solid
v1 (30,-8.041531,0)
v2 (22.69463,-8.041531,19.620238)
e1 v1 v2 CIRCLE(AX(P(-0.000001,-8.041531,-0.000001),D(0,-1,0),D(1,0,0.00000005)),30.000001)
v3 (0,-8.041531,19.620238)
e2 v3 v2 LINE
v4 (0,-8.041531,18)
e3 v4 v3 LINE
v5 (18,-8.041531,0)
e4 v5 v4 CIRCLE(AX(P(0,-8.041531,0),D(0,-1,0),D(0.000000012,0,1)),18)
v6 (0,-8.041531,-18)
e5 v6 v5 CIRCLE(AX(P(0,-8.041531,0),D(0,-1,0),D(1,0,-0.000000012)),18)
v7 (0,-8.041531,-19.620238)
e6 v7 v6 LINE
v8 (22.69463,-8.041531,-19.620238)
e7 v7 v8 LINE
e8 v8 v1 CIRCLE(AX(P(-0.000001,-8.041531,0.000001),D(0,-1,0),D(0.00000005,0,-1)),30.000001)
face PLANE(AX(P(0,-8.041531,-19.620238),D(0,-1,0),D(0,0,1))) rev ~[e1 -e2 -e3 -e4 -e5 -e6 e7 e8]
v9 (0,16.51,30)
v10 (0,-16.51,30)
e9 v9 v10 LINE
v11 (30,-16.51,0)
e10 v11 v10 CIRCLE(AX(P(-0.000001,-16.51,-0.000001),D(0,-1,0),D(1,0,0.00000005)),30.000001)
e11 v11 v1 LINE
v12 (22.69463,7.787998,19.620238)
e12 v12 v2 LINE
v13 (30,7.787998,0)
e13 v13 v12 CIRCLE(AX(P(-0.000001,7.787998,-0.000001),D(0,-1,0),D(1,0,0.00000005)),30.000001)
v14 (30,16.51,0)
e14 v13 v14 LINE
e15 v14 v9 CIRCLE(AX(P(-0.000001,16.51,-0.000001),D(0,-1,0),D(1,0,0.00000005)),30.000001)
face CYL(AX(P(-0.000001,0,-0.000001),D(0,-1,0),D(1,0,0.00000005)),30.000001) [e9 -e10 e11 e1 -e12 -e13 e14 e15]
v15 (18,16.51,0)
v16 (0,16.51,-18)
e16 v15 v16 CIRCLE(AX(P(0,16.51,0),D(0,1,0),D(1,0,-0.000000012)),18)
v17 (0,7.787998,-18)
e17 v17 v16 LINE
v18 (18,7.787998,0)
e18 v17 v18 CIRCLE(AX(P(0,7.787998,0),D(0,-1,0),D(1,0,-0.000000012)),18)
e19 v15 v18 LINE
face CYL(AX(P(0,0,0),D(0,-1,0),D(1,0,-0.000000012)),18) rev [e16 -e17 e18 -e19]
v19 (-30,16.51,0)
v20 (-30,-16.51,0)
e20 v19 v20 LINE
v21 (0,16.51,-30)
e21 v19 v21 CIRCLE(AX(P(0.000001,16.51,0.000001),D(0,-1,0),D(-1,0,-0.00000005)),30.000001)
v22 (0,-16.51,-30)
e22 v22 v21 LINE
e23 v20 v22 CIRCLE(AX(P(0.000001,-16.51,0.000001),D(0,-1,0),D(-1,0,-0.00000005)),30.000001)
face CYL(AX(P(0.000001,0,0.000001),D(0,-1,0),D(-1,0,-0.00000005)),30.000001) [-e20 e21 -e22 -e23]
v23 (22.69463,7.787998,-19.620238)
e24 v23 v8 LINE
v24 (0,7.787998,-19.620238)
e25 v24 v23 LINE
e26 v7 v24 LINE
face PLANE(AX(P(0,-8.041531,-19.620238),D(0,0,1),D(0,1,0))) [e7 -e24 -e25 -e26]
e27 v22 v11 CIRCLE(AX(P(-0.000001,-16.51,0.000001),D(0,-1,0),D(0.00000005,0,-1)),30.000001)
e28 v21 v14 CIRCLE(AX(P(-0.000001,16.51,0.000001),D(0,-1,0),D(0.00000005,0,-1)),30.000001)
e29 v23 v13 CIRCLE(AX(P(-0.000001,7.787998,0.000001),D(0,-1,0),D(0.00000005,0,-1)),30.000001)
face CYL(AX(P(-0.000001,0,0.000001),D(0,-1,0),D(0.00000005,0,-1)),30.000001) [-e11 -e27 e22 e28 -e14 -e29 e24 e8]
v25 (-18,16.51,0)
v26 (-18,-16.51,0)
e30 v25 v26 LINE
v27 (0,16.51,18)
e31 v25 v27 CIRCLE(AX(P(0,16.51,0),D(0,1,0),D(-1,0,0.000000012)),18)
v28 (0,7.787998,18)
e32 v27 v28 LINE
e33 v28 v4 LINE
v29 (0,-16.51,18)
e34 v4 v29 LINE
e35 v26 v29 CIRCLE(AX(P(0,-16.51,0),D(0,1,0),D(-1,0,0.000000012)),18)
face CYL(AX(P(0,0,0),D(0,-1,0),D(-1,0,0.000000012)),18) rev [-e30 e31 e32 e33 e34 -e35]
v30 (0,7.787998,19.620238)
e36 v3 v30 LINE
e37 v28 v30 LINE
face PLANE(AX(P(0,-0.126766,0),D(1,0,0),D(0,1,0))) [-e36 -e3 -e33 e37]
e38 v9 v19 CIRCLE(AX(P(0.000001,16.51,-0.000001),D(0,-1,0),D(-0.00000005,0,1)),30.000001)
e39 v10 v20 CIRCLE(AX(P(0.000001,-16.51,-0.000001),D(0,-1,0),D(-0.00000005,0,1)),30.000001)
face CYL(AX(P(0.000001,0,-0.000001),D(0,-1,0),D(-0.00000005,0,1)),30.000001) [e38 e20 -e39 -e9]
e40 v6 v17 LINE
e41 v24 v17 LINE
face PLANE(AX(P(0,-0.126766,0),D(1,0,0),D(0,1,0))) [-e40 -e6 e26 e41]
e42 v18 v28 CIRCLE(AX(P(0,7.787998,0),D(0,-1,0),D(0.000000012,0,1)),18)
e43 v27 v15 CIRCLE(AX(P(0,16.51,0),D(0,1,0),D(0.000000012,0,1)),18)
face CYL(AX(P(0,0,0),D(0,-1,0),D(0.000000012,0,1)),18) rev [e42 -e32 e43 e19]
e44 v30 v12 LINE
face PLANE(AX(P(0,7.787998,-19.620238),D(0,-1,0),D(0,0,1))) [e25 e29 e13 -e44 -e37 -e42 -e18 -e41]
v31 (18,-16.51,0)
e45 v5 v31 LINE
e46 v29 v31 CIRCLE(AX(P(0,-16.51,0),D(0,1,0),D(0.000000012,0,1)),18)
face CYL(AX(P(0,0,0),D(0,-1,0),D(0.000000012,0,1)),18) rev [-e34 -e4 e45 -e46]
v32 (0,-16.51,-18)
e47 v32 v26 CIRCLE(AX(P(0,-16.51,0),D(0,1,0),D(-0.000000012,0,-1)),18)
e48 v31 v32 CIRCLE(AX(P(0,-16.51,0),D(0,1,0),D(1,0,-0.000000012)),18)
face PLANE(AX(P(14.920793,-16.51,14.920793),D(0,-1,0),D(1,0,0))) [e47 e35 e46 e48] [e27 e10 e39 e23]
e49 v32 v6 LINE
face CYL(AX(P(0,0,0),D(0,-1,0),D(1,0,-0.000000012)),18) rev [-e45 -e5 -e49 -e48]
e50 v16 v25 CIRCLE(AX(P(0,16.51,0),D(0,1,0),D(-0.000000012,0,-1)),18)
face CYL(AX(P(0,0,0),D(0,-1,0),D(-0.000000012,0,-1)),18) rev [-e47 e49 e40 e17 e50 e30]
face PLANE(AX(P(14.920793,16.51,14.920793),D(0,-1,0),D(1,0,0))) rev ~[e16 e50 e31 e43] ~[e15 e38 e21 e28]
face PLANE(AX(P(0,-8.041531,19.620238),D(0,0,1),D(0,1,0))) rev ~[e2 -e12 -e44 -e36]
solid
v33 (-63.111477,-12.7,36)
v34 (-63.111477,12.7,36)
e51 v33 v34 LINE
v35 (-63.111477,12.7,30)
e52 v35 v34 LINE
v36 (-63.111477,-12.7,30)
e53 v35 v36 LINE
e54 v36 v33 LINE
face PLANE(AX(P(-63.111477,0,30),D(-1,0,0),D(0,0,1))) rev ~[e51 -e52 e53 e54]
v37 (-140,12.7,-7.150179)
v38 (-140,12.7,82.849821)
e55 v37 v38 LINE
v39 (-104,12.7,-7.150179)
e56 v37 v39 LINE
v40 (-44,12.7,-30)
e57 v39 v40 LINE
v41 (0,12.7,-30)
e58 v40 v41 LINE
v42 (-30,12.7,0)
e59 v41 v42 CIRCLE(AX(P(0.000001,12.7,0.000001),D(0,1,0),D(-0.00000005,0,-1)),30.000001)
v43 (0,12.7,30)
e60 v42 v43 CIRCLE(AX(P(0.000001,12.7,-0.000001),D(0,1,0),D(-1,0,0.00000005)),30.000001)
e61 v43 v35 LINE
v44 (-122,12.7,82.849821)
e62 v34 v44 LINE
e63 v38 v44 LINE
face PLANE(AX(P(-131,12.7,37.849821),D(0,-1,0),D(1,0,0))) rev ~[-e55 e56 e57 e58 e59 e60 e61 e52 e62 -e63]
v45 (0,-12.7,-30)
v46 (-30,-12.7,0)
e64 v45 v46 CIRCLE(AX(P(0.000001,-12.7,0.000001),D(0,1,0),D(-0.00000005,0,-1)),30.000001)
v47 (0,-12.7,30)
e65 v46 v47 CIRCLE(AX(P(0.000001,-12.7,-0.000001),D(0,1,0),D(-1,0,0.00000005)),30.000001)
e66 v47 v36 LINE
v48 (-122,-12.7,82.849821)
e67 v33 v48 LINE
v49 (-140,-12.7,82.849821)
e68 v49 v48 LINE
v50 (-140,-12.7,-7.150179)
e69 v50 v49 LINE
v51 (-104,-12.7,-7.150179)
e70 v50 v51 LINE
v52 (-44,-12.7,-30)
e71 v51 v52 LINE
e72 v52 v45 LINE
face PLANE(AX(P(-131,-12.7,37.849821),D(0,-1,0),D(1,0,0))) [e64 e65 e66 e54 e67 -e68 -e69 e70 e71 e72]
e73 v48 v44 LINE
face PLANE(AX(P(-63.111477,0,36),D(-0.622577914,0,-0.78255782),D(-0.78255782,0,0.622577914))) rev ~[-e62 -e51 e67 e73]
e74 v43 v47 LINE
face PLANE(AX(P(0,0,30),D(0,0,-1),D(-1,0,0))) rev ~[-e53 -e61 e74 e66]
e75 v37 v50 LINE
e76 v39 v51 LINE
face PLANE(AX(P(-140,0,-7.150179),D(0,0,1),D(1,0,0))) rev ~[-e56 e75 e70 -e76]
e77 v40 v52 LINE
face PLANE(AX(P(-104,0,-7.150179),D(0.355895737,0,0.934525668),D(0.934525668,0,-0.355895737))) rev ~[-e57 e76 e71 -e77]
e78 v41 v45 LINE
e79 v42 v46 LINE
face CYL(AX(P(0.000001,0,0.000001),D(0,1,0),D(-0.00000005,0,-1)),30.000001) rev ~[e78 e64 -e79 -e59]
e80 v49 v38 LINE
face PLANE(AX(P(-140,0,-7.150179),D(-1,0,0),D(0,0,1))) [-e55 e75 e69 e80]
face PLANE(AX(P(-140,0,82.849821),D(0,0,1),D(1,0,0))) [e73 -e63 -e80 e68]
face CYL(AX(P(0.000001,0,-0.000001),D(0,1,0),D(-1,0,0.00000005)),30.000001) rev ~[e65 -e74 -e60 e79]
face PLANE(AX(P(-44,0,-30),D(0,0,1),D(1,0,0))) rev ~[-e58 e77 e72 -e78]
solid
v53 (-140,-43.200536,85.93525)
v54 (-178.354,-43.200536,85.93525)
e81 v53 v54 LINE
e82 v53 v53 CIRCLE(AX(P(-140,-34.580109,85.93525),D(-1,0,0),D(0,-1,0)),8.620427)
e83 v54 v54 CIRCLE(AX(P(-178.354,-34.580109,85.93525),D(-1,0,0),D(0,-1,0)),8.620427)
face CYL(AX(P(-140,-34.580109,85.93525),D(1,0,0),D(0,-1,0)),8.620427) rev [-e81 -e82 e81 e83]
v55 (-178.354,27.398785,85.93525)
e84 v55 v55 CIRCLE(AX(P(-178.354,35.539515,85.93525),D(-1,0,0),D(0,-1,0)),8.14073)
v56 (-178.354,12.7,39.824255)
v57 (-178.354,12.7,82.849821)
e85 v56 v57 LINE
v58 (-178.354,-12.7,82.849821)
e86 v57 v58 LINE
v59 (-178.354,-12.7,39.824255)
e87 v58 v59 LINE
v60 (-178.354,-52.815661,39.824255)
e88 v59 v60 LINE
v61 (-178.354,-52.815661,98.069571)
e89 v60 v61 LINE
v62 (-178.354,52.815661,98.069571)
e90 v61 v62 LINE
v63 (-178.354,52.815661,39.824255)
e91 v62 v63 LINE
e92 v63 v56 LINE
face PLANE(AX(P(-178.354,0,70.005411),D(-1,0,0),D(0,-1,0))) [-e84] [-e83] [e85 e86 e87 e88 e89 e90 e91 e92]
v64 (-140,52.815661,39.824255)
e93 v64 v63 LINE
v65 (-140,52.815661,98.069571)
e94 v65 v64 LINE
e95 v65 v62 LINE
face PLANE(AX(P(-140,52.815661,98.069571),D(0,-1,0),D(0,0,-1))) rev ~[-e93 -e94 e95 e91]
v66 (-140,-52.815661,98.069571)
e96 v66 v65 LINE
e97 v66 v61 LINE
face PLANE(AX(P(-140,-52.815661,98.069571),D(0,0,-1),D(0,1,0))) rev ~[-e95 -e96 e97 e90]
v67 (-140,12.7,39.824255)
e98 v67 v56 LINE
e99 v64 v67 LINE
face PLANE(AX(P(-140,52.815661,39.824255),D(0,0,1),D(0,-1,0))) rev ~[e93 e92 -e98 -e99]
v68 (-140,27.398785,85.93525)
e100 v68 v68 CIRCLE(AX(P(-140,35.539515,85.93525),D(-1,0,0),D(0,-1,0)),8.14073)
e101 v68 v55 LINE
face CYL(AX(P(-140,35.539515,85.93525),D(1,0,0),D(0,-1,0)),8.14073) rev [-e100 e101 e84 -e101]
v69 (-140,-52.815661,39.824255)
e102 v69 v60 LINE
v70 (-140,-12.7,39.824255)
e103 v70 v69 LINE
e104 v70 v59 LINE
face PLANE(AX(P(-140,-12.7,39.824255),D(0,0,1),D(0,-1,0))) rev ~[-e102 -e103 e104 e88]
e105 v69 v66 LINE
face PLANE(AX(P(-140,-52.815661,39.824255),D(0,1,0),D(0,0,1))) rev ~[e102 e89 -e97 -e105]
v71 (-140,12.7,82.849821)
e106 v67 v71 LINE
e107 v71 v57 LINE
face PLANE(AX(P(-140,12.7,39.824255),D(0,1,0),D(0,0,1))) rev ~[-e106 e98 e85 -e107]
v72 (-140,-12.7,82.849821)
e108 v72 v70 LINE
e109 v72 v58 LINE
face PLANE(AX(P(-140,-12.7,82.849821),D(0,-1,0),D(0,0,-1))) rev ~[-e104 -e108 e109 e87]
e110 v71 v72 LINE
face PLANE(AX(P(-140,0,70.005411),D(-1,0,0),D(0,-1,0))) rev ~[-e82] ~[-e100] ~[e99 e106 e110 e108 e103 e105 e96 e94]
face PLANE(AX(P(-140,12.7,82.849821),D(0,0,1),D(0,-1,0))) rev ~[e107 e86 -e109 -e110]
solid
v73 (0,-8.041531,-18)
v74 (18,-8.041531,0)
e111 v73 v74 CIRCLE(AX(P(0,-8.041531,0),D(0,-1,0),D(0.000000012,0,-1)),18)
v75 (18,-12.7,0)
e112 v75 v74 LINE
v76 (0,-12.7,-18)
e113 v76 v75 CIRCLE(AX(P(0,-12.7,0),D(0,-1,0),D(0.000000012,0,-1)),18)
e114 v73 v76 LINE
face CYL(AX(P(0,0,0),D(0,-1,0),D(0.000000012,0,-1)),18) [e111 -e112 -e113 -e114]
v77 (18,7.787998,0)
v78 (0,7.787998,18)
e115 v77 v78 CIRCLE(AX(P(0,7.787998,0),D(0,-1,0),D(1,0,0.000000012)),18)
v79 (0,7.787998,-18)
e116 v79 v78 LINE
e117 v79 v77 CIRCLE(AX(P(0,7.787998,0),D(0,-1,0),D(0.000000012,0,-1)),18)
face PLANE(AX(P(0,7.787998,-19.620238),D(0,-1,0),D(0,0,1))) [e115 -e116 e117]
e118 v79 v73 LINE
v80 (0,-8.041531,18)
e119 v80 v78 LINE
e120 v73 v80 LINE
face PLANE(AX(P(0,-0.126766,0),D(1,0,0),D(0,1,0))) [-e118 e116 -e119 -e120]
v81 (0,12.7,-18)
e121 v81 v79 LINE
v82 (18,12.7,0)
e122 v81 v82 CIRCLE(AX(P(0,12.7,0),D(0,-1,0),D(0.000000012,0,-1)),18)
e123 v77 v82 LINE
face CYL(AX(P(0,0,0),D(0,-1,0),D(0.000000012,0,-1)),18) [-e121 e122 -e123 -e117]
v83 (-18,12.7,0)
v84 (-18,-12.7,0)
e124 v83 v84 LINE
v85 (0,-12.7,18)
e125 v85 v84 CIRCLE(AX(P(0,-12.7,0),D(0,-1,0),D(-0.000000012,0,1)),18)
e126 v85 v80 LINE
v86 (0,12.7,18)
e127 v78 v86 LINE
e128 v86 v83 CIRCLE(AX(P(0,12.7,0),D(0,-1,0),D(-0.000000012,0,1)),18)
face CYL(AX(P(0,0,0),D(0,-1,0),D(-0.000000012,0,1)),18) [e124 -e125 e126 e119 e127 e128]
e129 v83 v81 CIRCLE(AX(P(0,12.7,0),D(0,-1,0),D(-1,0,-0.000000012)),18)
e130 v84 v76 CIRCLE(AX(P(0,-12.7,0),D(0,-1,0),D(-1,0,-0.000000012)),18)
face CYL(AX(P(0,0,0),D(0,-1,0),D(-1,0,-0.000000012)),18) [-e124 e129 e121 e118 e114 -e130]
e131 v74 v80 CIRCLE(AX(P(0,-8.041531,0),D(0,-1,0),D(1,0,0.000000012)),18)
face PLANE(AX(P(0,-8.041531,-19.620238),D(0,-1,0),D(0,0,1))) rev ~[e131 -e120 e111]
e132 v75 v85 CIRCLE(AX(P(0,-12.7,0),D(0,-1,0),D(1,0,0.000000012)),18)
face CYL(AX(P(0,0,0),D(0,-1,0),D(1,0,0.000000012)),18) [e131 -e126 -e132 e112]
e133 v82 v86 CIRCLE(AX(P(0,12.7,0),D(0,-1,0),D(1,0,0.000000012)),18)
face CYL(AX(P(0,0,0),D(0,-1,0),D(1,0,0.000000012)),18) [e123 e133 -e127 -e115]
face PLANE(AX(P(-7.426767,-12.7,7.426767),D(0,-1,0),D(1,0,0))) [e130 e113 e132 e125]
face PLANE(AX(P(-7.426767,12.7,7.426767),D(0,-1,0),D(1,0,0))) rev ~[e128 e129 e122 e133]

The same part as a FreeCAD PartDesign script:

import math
import FreeCAD as App
import Part
import Sketcher
from FreeCAD import Vector


def add_polygon(sketch, points):
    """Adds a closed chain of lines whose ends are joined by coincident constraints."""
    first, n = sketch.GeometryCount, len(points)
    for a, b in zip(points, points[1:] + points[:1]):
        sketch.addGeometry(Part.LineSegment(App.Vector(*a, 0), App.Vector(*b, 0)), False)
    for i in range(n):
        sketch.addConstraint(Sketcher.Constraint("Coincident", first + i, 2, first + (i + 1) % n, 1))

doc = App.newDocument("Part")
body = doc.addObject("PartDesign::Body", "Body")
body.AllowCompound = True

# Sketch on XZ plane
sketch1 = doc.addObject("Sketcher::SketchObject", "Sketch")
body.addObject(sketch1)
sketch1.AttachmentSupport = (doc.XZ_Plane, [""])
sketch1.MapMode = "FlatFace"
sketch1.addGeometry([
    Part.LineSegment(Vector(-140, 83, 0), Vector(-140, -7, 0)),  # 0
    Part.LineSegment(Vector(-140, -7, 0), Vector(-104, -7, 0)),  # 1
    Part.LineSegment(Vector(-104, -7, 0), Vector(-44, -30, 0)),  # 2
    Part.LineSegment(Vector(-44, -30, 0), Vector(0, -30, 0)),  # 3
    Part.ArcOfCircle(Part.Circle(Vector(0, 0, 0), Vector(0, 0, 1), 30), math.radians(-180), math.radians(-90)),  # 4
    Part.ArcOfCircle(Part.Circle(Vector(0, 0, 0), Vector(0, 0, 1), 30), math.radians(90), math.radians(180)),  # 5
    Part.LineSegment(Vector(0, 30, 0), Vector(-63, 30, 0)),  # 6
    Part.LineSegment(Vector(-63, 30, 0), Vector(-63, 36, 0)),  # 7
    Part.LineSegment(Vector(-63, 36, 0), Vector(-122, 83, 0)),  # 8
    Part.LineSegment(Vector(-122, 83, 0), Vector(-140, 83, 0)),  # 9
    Part.ArcOfCircle(Part.Circle(Vector(0, 0, 0), Vector(0, 0, 1), 18), math.radians(90), math.radians(180)),  # 10
    Part.ArcOfCircle(Part.Circle(Vector(0, 0, 0), Vector(0, 0, 1), 18), math.radians(-180), math.radians(-90)),  # 11
    Part.ArcOfCircle(Part.Circle(Vector(0, 0, 0), Vector(0, 0, 1), 18), math.radians(-90), math.radians(0)),  # 12
    Part.ArcOfCircle(Part.Circle(Vector(0, 0, 0), Vector(0, 0, 1), 18), math.radians(0), math.radians(90)),  # 13
], False)
sketch1.addConstraint([
    Sketcher.Constraint("Coincident", 0, 2, 1, 1),
    Sketcher.Constraint("Coincident", 1, 2, 2, 1),
    Sketcher.Constraint("Coincident", 2, 2, 3, 1),
    Sketcher.Constraint("Tangent", 3, 2, 4, 2),
    Sketcher.Constraint("Tangent", 4, 1, 5, 2),
    Sketcher.Constraint("Tangent", 5, 1, 6, 1),
    Sketcher.Constraint("Coincident", 6, 2, 7, 1),
    Sketcher.Constraint("Coincident", 7, 2, 8, 1),
    Sketcher.Constraint("Coincident", 8, 2, 9, 1),
    Sketcher.Constraint("Coincident", 9, 2, 0, 1),
    Sketcher.Constraint("Tangent", 10, 2, 11, 1),
    Sketcher.Constraint("Tangent", 11, 2, 12, 1),
    Sketcher.Constraint("Tangent", 12, 2, 13, 1),
    Sketcher.Constraint("Tangent", 13, 2, 10, 1),
    Sketcher.Constraint("Vertical", 0),
    Sketcher.Constraint("Horizontal", 1),
    Sketcher.Constraint("Horizontal", 3),
    Sketcher.Constraint("Horizontal", 6),
    Sketcher.Constraint("Vertical", 7),
    Sketcher.Constraint("Horizontal", 9),
    Sketcher.Constraint("Coincident", 4, 3, -1, 1),
    Sketcher.Constraint("Coincident", 10, 3, -1, 1),
    Sketcher.Constraint("Equal", 4, 5),
    Sketcher.Constraint("Equal", 10, 11),
    Sketcher.Constraint("PointOnObject", 4, 1, -1),
    Sketcher.Constraint("PointOnObject", 10, 2, -1),
    Sketcher.Constraint("PointOnObject", 11, 2, -2),
    Sketcher.Constraint("PointOnObject", 12, 2, -1),
    Sketcher.Constraint("PointOnObject", 13, 2, -2),
    Sketcher.Constraint("Radius", 4, 30.000001),
    Sketcher.Constraint("Radius", 10, 18.0),
    Sketcher.Constraint("DistanceX", 1, 1, 1, 2, 36.0),
    Sketcher.Constraint("DistanceX", 3, 1, 3, 2, 44.0),
    Sketcher.Constraint("DistanceX", 9, 2, 9, 1, 18.0),
    Sketcher.Constraint("DistanceY", 0, 2, 0, 1, 90.0),
    Sketcher.Constraint("DistanceY", 7, 1, 7, 2, 6.0),
    Sketcher.Constraint("DistanceX", 0, 2, -1, 1, 140.0),
    Sketcher.Constraint("DistanceX", 6, 2, 6, 1, 63.111477),
    Sketcher.Constraint("DistanceY", 0, 2, -1, 1, 7.150179),
])
pad1 = doc.addObject("PartDesign::Pad", "Pad")
body.addObject(pad1)
pad1.Profile = sketch1
pad1.Length = 25.4
pad1.Midplane = True
body2 = doc.addObject("PartDesign::Body", "Body001")

# Sketch on XZ plane
sketch2 = doc.addObject("Sketcher::SketchObject", "Sketch001")
body2.addObject(sketch2)
sketch2.AttachmentSupport = (doc.getObject("XZ_Plane001"), [""])
sketch2.MapMode = "FlatFace"
sketch2.addGeometry([
    Part.ArcOfCircle(Part.Circle(Vector(0, 0, 0), Vector(0, 0, 1), 30), math.radians(0), math.radians(90)),  # 0
    Part.ArcOfCircle(Part.Circle(Vector(0, 0, 0), Vector(0, 0, 1), 30), math.radians(90), math.radians(180)),  # 1
    Part.ArcOfCircle(Part.Circle(Vector(0, 0, 0), Vector(0, 0, 1), 30), math.radians(-180), math.radians(-90)),  # 2
    Part.ArcOfCircle(Part.Circle(Vector(0, 0, 0), Vector(0, 0, 1), 30), math.radians(-90), math.radians(0)),  # 3
    Part.ArcOfCircle(Part.Circle(Vector(0, 0, 0), Vector(0, 0, 1), 18), math.radians(-180), math.radians(-90)),  # 4
    Part.ArcOfCircle(Part.Circle(Vector(0, 0, 0), Vector(0, 0, 1), 18), math.radians(90), math.radians(180)),  # 5
    Part.ArcOfCircle(Part.Circle(Vector(0, 0, 0), Vector(0, 0, 1), 18), math.radians(0), math.radians(90)),  # 6
    Part.ArcOfCircle(Part.Circle(Vector(0, 0, 0), Vector(0, 0, 1), 18), math.radians(-90), math.radians(0)),  # 7
], False)
sketch2.addConstraint([
    Sketcher.Constraint("Tangent", 0, 2, 1, 1),
    Sketcher.Constraint("Tangent", 1, 2, 2, 1),
    Sketcher.Constraint("Tangent", 2, 2, 3, 1),
    Sketcher.Constraint("Tangent", 3, 2, 0, 1),
    Sketcher.Constraint("Tangent", 4, 1, 5, 2),
    Sketcher.Constraint("Tangent", 5, 1, 6, 2),
    Sketcher.Constraint("Tangent", 6, 1, 7, 2),
    Sketcher.Constraint("Tangent", 7, 1, 4, 2),
    Sketcher.Constraint("Coincident", 0, 3, -1, 1),
    Sketcher.Constraint("Coincident", 4, 3, -1, 1),
    Sketcher.Constraint("Equal", 0, 1),
    Sketcher.Constraint("Equal", 4, 5),
    Sketcher.Constraint("PointOnObject", 0, 2, -2),
    Sketcher.Constraint("PointOnObject", 1, 2, -1),
    Sketcher.Constraint("PointOnObject", 2, 2, -2),
    Sketcher.Constraint("PointOnObject", 3, 2, -1),
    Sketcher.Constraint("PointOnObject", 4, 1, -1),
    Sketcher.Constraint("PointOnObject", 5, 1, -2),
    Sketcher.Constraint("PointOnObject", 6, 1, -1),
    Sketcher.Constraint("PointOnObject", 7, 1, -2),
    Sketcher.Constraint("Radius", 0, 30.000001),
    Sketcher.Constraint("Radius", 4, 18.0),
])
pad2 = doc.addObject("PartDesign::Pad", "Pad001")
body2.addObject(pad2)
pad2.Profile = sketch2
pad2.Length = 33.02
pad2.Midplane = True
body3 = doc.addObject("PartDesign::Body", "Body002")

# Sketch on YZ plane
sketch3 = doc.addObject("Sketcher::SketchObject", "Sketch002")
body3.addObject(sketch3)
sketch3.AttachmentSupport = (doc.getObject("YZ_Plane002"), [""])
sketch3.MapMode = "FlatFace"
sketch3.AttachmentOffset = App.Placement(Vector(0, 0, -140), App.Rotation())
add_polygon(sketch3, [(-53, 98), (53, 98), (53, 40), (13, 40), (13, 83), (-13, 83), (-13, 40), (-53, 40)])  # lines 0-7
sketch3.addGeometry(Part.Circle(Vector(36, 86, 0), Vector(0, 0, 1), 8), False)  # 8
sketch3.addGeometry(Part.Circle(Vector(-35, 86, 0), Vector(0, 0, 1), 9), False)  # 9
sketch3.addConstraint([
    Sketcher.Constraint("Horizontal", 0),
    Sketcher.Constraint("Vertical", 1),
    Sketcher.Constraint("Horizontal", 2),
    Sketcher.Constraint("Vertical", 3),
    Sketcher.Constraint("Horizontal", 4),
    Sketcher.Constraint("Vertical", 5),
    Sketcher.Constraint("Horizontal", 6),
    Sketcher.Constraint("Vertical", 7),
    Sketcher.Constraint("Symmetric", 2, 2, 5, 2, -2),
    Sketcher.Constraint("Horizontal", 8, 3, 9, 3),
    Sketcher.Constraint("Equal", 2, 6),
    Sketcher.Constraint("DistanceX", 4, 2, 4, 1, 25.4),
    Sketcher.Constraint("Diameter", 8, 16.28146),
    Sketcher.Constraint("Diameter", 9, 17.240854),
    Sketcher.Constraint("DistanceX", 0, 1, 0, 2, 105.631322),
    Sketcher.Constraint("DistanceY", 1, 2, 1, 1, 58.245316),
    Sketcher.Constraint("DistanceY", 3, 1, 3, 2, 43.025566),
    Sketcher.Constraint("DistanceY", -1, 1, 8, 3, 85.93525),
    Sketcher.Constraint("DistanceX", 9, 3, -1, 1, 34.580109),
    Sketcher.Constraint("DistanceY", -1, 1, 0, 2, 98.069571),
    Sketcher.Constraint("DistanceX", -1, 1, 8, 3, 35.539515),
])
pad3 = doc.addObject("PartDesign::Pad", "Pad002")
body3.addObject(pad3)
pad3.Profile = sketch3
pad3.Length = 38.354
pad3.Reversed = True
body4 = doc.addObject("PartDesign::Body", "Body003")

# Sketch on YZ plane
sketch4 = doc.addObject("Sketcher::SketchObject", "Sketch003")
body4.addObject(sketch4)
sketch4.AttachmentSupport = (doc.getObject("YZ_Plane003"), [""])
sketch4.MapMode = "FlatFace"
add_polygon(sketch4, [(-8, 20), (-8, -20), (8, -20), (8, 20)])  # lines 0-3
sketch4.addConstraint([
    Sketcher.Constraint("Vertical", 0),
    Sketcher.Constraint("Horizontal", 1),
    Sketcher.Constraint("Vertical", 2),
    Sketcher.Constraint("Horizontal", 3),
    Sketcher.Constraint("DistanceX", -1, 1, 1, 2, 7.787998),
    Sketcher.Constraint("DistanceX", 1, 1, 1, 2, 15.829529),
    Sketcher.Constraint("DistanceY", 0, 2, 0, 1, 39.240476),
    Sketcher.Constraint("DistanceY", 0, 2, -1, 1, 19.620238),
])
pad4 = doc.addObject("PartDesign::Pad", "Pad003")
body4.addObject(pad4)
pad4.Profile = sketch4
pad4.Length = 56.896
body.AllowCompound = True
doc.recompute()

body5 = doc.addObject("PartDesign::Body", "Body004")
body5.BaseFeature = body4
boolean = doc.addObject("PartDesign::Boolean", "Boolean")
body.addObject(boolean)
boolean.Type = "Cut"
boolean.addObjects([body5])
doc.recompute()

boolean2 = doc.addObject("PartDesign::Boolean", "Boolean001")
body2.addObject(boolean2)
boolean2.Type = "Cut"
boolean2.addObjects([body4])

doc.recompute()
